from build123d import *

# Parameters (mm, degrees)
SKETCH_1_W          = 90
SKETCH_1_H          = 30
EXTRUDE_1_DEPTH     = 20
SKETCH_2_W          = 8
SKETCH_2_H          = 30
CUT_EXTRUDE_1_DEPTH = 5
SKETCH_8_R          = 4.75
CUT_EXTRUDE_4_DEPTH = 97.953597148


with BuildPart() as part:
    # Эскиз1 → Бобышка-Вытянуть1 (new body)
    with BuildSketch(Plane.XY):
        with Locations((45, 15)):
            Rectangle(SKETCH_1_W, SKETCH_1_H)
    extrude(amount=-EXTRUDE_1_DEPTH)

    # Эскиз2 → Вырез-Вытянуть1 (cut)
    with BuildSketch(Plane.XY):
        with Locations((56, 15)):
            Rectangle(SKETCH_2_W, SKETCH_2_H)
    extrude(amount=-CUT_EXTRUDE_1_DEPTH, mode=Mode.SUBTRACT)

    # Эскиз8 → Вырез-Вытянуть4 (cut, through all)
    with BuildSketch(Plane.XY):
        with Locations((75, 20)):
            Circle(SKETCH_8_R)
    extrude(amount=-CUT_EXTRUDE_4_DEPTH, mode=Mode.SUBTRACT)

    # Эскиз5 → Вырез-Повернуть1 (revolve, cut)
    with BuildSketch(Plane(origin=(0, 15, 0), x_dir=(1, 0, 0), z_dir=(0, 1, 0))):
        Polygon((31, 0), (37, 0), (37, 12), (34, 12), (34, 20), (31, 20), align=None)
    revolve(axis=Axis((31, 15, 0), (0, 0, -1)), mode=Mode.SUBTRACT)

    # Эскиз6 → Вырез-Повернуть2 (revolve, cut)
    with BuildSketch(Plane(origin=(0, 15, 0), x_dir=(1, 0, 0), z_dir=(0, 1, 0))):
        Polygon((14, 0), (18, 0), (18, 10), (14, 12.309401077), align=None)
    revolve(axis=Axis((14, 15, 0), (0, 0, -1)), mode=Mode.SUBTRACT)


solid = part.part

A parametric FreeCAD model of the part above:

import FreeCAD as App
import Part
import Sketcher
from FreeCAD import Vector
Q = App.Units.Quantity

doc = App.newDocument("Part")
body = doc.addObject("PartDesign::Body", "Body")

# Sketch on XY plane
sketch1 = body.newObject("Sketcher::SketchObject", "Sketch")
sketch1.AttachmentSupport = (doc.getObject("XY_Plane"), [""])
sketch1.MapMode = "FlatFace"
sketch1.addGeometry([
    Part.LineSegment(Vector(0, 30, 0), Vector(0, 0, 0)),
    Part.LineSegment(Vector(0, 0, 0), Vector(90, 0, 0)),
    Part.LineSegment(Vector(90, 0, 0), Vector(90, 30, 0)),
    Part.LineSegment(Vector(90, 30, 0), Vector(0, 30, 0)),
], False)
sketch1.addConstraint([
    Sketcher.Constraint("Coincident", 0, 2, 1, 1),
    Sketcher.Constraint("Coincident", 1, 2, 2, 1),
    Sketcher.Constraint("Coincident", 2, 2, 3, 1),
    Sketcher.Constraint("Coincident", 3, 2, 0, 1),
    Sketcher.Constraint("Vertical", 0),
    Sketcher.Constraint("Horizontal", 1),
    Sketcher.Constraint("Vertical", 2),
    Sketcher.Constraint("Horizontal", 3),
    Sketcher.Constraint("Coincident", 0, 2, -1, 1),
    Sketcher.Constraint("DistanceX", 1, 1, 1, 2, 90.0),
    Sketcher.Constraint("DistanceY", 0, 2, 0, 1, 30.0),
])
pad1 = body.newObject("PartDesign::Pad", "Pad")
pad1.Profile = sketch1
pad1.Length = 20
pad1.Reversed = True

# Sketch on XY plane
sketch2 = body.newObject("Sketcher::SketchObject", "Sketch001")
sketch2.AttachmentSupport = (doc.getObject("XY_Plane"), [""])
sketch2.MapMode = "FlatFace"
sketch2.addGeometry([
    Part.LineSegment(Vector(52, 30, 0), Vector(52, 0, 0)),
    Part.LineSegment(Vector(52, 0, 0), Vector(60, 0, 0)),
    Part.LineSegment(Vector(60, 0, 0), Vector(60, 30, 0)),
    Part.LineSegment(Vector(60, 30, 0), Vector(52, 30, 0)),
], False)
sketch2.addConstraint([
    Sketcher.Constraint("Coincident", 0, 2, 1, 1),
    Sketcher.Constraint("Coincident", 1, 2, 2, 1),
    Sketcher.Constraint("Coincident", 2, 2, 3, 1),
    Sketcher.Constraint("Coincident", 3, 2, 0, 1),
    Sketcher.Constraint("Vertical", 0),
    Sketcher.Constraint("Horizontal", 1),
    Sketcher.Constraint("Vertical", 2),
    Sketcher.Constraint("Horizontal", 3),
    Sketcher.Constraint("PointOnObject", 0, 2, -1),
    Sketcher.Constraint("DistanceX", 1, 1, 1, 2, 8.0),
    Sketcher.Constraint("DistanceY", 0, 2, 0, 1, 30.0),
    Sketcher.Constraint("DistanceX", -1, 1, 0, 2, 52.0),
])
pocket1 = body.newObject("PartDesign::Pocket", "Pocket")
pocket1.Profile = sketch2
pocket1.Length = 5

# Sketch on XY plane
sketch3 = body.newObject("Sketcher::SketchObject", "Sketch002")
sketch3.AttachmentSupport = (doc.getObject("XY_Plane"), [""])
sketch3.MapMode = "FlatFace"
sketch3.addGeometry(Part.Circle(Vector(75, 20, 0), Vector(0, 0, 1), 4.8), False)
sketch3.addConstraint([
    Sketcher.Constraint("Diameter", 0, 9.5),
    Sketcher.Constraint("DistanceX", -1, 1, 0, 3, 75.0),
    Sketcher.Constraint("DistanceY", -1, 1, 0, 3, 20.0),
])
pocket2 = body.newObject("PartDesign::Pocket", "Pocket001")
pocket2.Profile = sketch3
pocket2.Type = "ThroughAll"

# Sketch on XZ plane
sketch4 = body.newObject("Sketcher::SketchObject", "Sketch003")
sketch4.AttachmentSupport = (doc.getObject("XZ_Plane"), [""])
sketch4.MapMode = "FlatFace"
sketch4.AttachmentOffset = App.Placement(Vector(0, 0, -15), App.Rotation())
sketch4.addGeometry([
    Part.LineSegment(Vector(31, 0, 0), Vector(37, 0, 0)),  # 0
    Part.LineSegment(Vector(37, 0, 0), Vector(37, -12, 0)),  # 1
    Part.LineSegment(Vector(37, -12, 0), Vector(34, -12, 0)),  # 2
    Part.LineSegment(Vector(34, -12, 0), Vector(34, -20, 0)),  # 3
    Part.LineSegment(Vector(34, -20, 0), Vector(31, -20, 0)),  # 4
    Part.LineSegment(Vector(31, -20, 0), Vector(31, 0, 0)),  # 5
], False)
sketch4.addGeometry(Part.LineSegment(Vector(31, 0, 0), Vector(31, -20, 0)), True)  # axis
sketch4.addConstraint([
    Sketcher.Constraint("Coincident", 0, 2, 1, 1),
    Sketcher.Constraint("Coincident", 1, 2, 2, 1),
    Sketcher.Constraint("Coincident", 2, 2, 3, 1),
    Sketcher.Constraint("Coincident", 3, 2, 4, 1),
    Sketcher.Constraint("Coincident", 4, 2, 5, 1),
    Sketcher.Constraint("Coincident", 5, 2, 0, 1),
    Sketcher.Constraint("Horizontal", 0),
    Sketcher.Constraint("Vertical", 1),
    Sketcher.Constraint("Horizontal", 2),
    Sketcher.Constraint("Vertical", 3),
    Sketcher.Constraint("Horizontal", 4),
    Sketcher.Constraint("Vertical", 5),
    Sketcher.Constraint("Vertical", 6),
    Sketcher.Constraint("Coincident", 6, 1, 5, 2),
    Sketcher.Constraint("PointOnObject", 0, 2, -1),
    Sketcher.Constraint("Horizontal", 3, 2, 6, 2),
    Sketcher.Constraint("Equal", 2, 4),
    Sketcher.Constraint("DistanceX", 0, 1, 0, 2, 6.0),
    Sketcher.Constraint("DistanceY", 1, 2, 1, 1, 12.0),
    Sketcher.Constraint("DistanceY", 3, 2, 3, 1, 8.0),
    Sketcher.Constraint("DistanceX", -1, 1, 0, 2, 37.0),
])
groove = body.newObject("PartDesign::Groove", "Groove")
groove.Profile = sketch4
groove.ReferenceAxis = (sketch4, ["Axis0"])
groove.Angle = 360

# Sketch on XZ plane
sketch5 = body.newObject("Sketcher::SketchObject", "Sketch004")
sketch5.AttachmentSupport = (doc.getObject("XZ_Plane"), [""])
sketch5.MapMode = "FlatFace"
sketch5.AttachmentOffset = App.Placement(Vector(0, 0, -15), App.Rotation())
sketch5.addGeometry([
    Part.LineSegment(Vector(14, 0, 0), Vector(18, 0, 0)),
    Part.LineSegment(Vector(18, 0, 0), Vector(18, -10, 0)),
    Part.LineSegment(Vector(18, -10, 0), Vector(14, -12.3, 0)),
    Part.LineSegment(Vector(14, -12.3, 0), Vector(14, 0, 0)),
], False)
sketch5.addGeometry(Part.LineSegment(Vector(14, 0, 0), Vector(14, -12.3, 0)), True)  # axis
sketch5.addConstraint([
    Sketcher.Constraint("Coincident", 0, 2, 1, 1),
    Sketcher.Constraint("Coincident", 1, 2, 2, 1),
    Sketcher.Constraint("Coincident", 2, 2, 3, 1),
    Sketcher.Constraint("Coincident", 3, 2, 0, 1),
    Sketcher.Constraint("Horizontal", 0),
    Sketcher.Constraint("Vertical", 1),
    Sketcher.Constraint("Vertical", 3),
    Sketcher.Constraint("Vertical", 4),
    Sketcher.Constraint("Coincident", 4, 1, 3, 2),
    Sketcher.Constraint("PointOnObject", 0, 2, -1),
    Sketcher.Constraint("Equal", 3, 4),
    Sketcher.Constraint("DistanceX", 0, 1, 0, 2, 4.0),
    Sketcher.Constraint("DistanceY", 1, 2, 1, 1, 10.0),
    Sketcher.Constraint("Angle", 2, Q("-150 deg")),
    Sketcher.Constraint("DistanceX", -1, 1, 0, 2, 18.0),
])
groove2 = body.newObject("PartDesign::Groove", "Groove001")
groove2.Profile = sketch5
groove2.ReferenceAxis = (sketch5, ["Axis0"])
groove2.Angle = 360

doc.recompute()
